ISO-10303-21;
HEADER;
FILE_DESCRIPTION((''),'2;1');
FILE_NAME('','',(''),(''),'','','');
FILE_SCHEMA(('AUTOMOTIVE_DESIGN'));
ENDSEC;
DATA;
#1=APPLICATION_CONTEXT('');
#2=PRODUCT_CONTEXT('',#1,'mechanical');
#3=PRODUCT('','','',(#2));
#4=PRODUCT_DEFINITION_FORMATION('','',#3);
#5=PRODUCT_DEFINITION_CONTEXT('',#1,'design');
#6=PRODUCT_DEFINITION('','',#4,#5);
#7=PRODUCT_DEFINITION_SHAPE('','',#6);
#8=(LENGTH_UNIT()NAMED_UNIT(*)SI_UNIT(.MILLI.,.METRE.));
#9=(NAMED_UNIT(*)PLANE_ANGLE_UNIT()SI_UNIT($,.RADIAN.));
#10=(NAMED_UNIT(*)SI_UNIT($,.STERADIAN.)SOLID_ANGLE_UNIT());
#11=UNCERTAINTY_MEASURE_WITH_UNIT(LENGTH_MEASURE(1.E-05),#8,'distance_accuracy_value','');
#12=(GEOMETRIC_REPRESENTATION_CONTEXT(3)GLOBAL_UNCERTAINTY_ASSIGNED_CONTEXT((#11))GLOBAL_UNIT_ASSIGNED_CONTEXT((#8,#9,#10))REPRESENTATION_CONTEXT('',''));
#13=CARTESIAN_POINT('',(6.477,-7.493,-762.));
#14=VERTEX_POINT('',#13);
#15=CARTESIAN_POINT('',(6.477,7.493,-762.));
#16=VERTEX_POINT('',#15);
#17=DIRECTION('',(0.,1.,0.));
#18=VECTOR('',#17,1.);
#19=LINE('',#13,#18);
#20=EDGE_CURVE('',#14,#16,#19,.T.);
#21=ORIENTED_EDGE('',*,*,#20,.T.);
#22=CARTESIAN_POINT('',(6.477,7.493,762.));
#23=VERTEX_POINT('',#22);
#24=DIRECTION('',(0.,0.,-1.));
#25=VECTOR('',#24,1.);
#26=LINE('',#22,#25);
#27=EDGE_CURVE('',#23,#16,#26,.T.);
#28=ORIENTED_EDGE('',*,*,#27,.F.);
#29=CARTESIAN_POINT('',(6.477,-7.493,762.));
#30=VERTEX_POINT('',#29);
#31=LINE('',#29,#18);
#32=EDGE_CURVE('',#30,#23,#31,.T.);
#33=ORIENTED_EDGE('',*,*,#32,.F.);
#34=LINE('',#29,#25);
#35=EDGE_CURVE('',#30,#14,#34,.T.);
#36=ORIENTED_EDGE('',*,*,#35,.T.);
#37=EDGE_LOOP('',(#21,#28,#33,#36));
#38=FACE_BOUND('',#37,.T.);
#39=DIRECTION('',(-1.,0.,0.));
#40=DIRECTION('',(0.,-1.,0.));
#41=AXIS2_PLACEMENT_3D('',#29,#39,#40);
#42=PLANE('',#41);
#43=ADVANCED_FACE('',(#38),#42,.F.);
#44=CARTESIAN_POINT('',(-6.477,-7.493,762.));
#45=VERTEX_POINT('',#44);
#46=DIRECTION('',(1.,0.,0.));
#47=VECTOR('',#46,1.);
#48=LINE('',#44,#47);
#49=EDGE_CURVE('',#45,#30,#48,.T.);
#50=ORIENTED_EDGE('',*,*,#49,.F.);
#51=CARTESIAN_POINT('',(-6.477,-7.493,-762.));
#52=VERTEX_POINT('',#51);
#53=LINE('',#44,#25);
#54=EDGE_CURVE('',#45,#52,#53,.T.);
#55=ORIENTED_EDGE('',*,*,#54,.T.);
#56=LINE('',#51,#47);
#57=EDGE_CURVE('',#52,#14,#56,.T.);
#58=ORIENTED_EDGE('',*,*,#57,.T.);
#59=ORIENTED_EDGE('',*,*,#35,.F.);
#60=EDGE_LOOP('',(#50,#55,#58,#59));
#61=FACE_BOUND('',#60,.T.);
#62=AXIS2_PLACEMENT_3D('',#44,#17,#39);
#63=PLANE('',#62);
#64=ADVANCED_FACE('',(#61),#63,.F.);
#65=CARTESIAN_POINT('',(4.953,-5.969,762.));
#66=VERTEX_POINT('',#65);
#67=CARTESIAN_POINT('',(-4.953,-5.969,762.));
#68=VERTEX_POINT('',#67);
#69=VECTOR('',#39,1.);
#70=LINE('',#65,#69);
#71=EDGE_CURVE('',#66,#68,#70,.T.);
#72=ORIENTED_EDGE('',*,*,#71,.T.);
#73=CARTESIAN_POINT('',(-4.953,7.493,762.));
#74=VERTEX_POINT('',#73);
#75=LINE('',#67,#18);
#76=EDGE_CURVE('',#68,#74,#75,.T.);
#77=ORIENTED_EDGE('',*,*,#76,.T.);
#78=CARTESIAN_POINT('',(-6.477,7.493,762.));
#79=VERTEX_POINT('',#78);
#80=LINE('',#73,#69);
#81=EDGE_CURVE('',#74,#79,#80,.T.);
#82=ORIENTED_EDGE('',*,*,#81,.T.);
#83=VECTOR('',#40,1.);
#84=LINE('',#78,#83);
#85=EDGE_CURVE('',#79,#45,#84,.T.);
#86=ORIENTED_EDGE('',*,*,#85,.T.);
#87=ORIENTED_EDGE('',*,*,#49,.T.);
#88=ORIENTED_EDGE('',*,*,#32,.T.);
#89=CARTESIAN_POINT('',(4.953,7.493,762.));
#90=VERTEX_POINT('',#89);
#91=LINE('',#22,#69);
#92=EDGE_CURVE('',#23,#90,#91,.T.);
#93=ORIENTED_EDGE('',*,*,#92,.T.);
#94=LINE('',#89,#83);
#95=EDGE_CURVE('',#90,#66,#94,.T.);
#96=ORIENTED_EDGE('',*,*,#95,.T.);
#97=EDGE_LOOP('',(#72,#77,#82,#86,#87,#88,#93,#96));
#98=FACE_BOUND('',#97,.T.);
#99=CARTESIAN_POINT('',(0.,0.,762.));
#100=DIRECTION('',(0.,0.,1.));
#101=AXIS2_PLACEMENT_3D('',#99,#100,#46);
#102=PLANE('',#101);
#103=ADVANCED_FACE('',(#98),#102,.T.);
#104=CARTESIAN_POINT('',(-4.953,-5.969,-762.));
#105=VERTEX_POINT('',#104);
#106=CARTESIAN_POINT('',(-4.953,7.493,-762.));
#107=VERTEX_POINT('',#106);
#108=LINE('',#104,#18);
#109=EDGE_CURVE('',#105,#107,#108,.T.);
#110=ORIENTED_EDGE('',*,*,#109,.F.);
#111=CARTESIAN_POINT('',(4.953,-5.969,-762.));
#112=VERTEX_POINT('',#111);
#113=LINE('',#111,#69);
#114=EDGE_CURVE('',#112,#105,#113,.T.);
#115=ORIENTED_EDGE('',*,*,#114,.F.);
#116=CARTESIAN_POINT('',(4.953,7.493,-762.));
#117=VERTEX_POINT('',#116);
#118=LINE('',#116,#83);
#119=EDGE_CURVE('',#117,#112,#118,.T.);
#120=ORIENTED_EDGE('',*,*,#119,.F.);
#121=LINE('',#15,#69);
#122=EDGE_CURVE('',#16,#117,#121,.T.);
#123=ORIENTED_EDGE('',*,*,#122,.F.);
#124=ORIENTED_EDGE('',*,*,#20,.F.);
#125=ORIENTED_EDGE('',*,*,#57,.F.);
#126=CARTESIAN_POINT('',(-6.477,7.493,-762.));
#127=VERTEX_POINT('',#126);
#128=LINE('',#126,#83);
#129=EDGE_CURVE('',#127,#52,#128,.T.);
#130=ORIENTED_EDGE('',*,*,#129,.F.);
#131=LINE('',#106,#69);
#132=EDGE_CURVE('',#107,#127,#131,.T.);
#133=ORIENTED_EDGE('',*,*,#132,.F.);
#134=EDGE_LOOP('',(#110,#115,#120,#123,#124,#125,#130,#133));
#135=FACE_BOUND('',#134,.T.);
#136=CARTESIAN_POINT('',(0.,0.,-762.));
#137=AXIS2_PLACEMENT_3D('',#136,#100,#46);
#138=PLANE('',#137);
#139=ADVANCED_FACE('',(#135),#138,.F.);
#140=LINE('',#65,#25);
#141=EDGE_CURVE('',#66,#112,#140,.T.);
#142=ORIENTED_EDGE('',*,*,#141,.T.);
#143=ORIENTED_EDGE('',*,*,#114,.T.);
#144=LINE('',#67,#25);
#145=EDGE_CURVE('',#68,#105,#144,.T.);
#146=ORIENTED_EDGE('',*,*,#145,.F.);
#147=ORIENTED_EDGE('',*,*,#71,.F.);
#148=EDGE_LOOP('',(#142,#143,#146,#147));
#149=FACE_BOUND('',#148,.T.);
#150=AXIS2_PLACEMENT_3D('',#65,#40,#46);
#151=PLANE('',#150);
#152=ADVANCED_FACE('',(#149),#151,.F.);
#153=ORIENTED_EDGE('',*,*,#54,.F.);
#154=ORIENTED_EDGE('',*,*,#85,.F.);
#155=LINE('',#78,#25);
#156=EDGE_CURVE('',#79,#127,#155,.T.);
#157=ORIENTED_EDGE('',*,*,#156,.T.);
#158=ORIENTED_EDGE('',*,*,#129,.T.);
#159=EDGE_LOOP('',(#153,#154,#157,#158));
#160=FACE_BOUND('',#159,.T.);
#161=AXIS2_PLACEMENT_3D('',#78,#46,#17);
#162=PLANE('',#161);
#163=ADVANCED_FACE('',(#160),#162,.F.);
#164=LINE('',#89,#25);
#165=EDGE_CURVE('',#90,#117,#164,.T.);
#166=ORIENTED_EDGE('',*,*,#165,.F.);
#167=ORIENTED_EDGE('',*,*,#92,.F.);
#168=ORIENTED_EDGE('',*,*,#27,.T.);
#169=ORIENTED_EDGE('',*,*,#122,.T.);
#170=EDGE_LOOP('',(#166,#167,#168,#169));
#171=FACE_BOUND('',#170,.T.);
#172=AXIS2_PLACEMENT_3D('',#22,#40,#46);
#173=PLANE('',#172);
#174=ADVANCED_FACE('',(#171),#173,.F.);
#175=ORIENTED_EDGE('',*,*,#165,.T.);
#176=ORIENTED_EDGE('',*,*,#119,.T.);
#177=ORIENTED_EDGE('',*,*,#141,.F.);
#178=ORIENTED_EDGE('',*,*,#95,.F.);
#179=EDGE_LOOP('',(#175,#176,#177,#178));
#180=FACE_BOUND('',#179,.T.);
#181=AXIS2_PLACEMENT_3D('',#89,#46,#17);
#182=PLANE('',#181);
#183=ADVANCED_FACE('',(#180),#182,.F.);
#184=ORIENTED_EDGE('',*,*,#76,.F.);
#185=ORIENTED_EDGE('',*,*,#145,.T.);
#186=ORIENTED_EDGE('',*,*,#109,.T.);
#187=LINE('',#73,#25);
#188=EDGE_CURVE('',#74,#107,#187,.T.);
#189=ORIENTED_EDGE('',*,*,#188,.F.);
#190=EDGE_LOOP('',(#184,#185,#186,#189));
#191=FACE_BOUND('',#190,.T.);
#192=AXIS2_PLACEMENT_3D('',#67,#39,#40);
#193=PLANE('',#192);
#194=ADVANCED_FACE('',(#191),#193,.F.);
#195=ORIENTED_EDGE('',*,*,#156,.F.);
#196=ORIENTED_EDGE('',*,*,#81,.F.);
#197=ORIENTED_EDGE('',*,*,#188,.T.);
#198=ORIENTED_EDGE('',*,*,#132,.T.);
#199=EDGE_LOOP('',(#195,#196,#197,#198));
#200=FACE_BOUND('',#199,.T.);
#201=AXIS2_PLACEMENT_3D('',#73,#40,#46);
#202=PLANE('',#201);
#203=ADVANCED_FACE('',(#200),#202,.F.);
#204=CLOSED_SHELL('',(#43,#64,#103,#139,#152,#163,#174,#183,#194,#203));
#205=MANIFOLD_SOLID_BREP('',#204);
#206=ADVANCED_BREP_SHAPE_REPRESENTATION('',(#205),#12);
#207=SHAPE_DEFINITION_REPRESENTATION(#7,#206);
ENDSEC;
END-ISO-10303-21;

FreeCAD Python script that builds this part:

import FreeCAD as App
import Part
import Sketcher
from FreeCAD import Vector
Q = App.Units.Quantity

doc = App.newDocument("Part")
body = doc.addObject("PartDesign::Body", "Body")

sketch1 = body.newObject("Sketcher::SketchObject", "Sketch")
sketch1.AttachmentSupport = (doc.getObject("XY_Plane"), [""])
sketch1.MapMode = "FlatFace"
sketch1.addGeometry([
    Part.LineSegment(Vector(-6.477, 7.493, 0), Vector(-6.477, -7.493, 0)),
    Part.LineSegment(Vector(-6.477, -7.493, 0), Vector(6.477, -7.493, 0)),
    Part.LineSegment(Vector(6.477, -7.493, 0), Vector(6.477, 7.493, 0)),
    Part.LineSegment(Vector(6.477, 7.493, 0), Vector(4.953, 7.493, 0)),
    Part.LineSegment(Vector(4.953, 7.493, 0), Vector(4.953, -5.969, 0)),
    Part.LineSegment(Vector(4.953, -5.969, 0), Vector(-4.953, -5.969, 0)),
    Part.LineSegment(Vector(-4.953, -5.969, 0), Vector(-4.953, 7.493, 0)),
    Part.LineSegment(Vector(-4.953, 7.493, 0), Vector(-6.477, 7.493, 0)),
], False)
sketch1.addConstraint([
    Sketcher.Constraint("Coincident", 0, 2, 1, 1),
    Sketcher.Constraint("Coincident", 1, 2, 2, 1),
    Sketcher.Constraint("Coincident", 2, 2, 3, 1),
    Sketcher.Constraint("Coincident", 3, 2, 4, 1),
    Sketcher.Constraint("Coincident", 4, 2, 5, 1),
    Sketcher.Constraint("Coincident", 5, 2, 6, 1),
    Sketcher.Constraint("Coincident", 6, 2, 7, 1),
    Sketcher.Constraint("Coincident", 7, 2, 0, 1),
    Sketcher.Constraint("Vertical", 0),
    Sketcher.Constraint("Horizontal", 1),
    Sketcher.Constraint("Vertical", 2),
    Sketcher.Constraint("Horizontal", 3),
    Sketcher.Constraint("Vertical", 4),
    Sketcher.Constraint("Horizontal", 5),
    Sketcher.Constraint("Vertical", 6),
    Sketcher.Constraint("Horizontal", 7),
    Sketcher.Constraint("Symmetric", 0, 2, 2, 2, -1, 1),
    Sketcher.Constraint("Symmetric", 3, 2, 6, 2, -2),
    Sketcher.Constraint("DistanceX", 1, 1, 1, 2, Q("0.51 in")),
    Sketcher.Constraint("DistanceX", 3, 2, 3, 1, Q("0.06 in")),
    Sketcher.Constraint("DistanceY", 0, 2, 0, 1, Q("0.59 in")),
    Sketcher.Constraint("DistanceY", 4, 2, 4, 1, Q("0.53 in")),
])
pad1 = body.newObject("PartDesign::Pad", "Pad")
pad1.Profile = sketch1
pad1.Length = Q("60 in")
pad1.Midplane = True

doc.recompute()
